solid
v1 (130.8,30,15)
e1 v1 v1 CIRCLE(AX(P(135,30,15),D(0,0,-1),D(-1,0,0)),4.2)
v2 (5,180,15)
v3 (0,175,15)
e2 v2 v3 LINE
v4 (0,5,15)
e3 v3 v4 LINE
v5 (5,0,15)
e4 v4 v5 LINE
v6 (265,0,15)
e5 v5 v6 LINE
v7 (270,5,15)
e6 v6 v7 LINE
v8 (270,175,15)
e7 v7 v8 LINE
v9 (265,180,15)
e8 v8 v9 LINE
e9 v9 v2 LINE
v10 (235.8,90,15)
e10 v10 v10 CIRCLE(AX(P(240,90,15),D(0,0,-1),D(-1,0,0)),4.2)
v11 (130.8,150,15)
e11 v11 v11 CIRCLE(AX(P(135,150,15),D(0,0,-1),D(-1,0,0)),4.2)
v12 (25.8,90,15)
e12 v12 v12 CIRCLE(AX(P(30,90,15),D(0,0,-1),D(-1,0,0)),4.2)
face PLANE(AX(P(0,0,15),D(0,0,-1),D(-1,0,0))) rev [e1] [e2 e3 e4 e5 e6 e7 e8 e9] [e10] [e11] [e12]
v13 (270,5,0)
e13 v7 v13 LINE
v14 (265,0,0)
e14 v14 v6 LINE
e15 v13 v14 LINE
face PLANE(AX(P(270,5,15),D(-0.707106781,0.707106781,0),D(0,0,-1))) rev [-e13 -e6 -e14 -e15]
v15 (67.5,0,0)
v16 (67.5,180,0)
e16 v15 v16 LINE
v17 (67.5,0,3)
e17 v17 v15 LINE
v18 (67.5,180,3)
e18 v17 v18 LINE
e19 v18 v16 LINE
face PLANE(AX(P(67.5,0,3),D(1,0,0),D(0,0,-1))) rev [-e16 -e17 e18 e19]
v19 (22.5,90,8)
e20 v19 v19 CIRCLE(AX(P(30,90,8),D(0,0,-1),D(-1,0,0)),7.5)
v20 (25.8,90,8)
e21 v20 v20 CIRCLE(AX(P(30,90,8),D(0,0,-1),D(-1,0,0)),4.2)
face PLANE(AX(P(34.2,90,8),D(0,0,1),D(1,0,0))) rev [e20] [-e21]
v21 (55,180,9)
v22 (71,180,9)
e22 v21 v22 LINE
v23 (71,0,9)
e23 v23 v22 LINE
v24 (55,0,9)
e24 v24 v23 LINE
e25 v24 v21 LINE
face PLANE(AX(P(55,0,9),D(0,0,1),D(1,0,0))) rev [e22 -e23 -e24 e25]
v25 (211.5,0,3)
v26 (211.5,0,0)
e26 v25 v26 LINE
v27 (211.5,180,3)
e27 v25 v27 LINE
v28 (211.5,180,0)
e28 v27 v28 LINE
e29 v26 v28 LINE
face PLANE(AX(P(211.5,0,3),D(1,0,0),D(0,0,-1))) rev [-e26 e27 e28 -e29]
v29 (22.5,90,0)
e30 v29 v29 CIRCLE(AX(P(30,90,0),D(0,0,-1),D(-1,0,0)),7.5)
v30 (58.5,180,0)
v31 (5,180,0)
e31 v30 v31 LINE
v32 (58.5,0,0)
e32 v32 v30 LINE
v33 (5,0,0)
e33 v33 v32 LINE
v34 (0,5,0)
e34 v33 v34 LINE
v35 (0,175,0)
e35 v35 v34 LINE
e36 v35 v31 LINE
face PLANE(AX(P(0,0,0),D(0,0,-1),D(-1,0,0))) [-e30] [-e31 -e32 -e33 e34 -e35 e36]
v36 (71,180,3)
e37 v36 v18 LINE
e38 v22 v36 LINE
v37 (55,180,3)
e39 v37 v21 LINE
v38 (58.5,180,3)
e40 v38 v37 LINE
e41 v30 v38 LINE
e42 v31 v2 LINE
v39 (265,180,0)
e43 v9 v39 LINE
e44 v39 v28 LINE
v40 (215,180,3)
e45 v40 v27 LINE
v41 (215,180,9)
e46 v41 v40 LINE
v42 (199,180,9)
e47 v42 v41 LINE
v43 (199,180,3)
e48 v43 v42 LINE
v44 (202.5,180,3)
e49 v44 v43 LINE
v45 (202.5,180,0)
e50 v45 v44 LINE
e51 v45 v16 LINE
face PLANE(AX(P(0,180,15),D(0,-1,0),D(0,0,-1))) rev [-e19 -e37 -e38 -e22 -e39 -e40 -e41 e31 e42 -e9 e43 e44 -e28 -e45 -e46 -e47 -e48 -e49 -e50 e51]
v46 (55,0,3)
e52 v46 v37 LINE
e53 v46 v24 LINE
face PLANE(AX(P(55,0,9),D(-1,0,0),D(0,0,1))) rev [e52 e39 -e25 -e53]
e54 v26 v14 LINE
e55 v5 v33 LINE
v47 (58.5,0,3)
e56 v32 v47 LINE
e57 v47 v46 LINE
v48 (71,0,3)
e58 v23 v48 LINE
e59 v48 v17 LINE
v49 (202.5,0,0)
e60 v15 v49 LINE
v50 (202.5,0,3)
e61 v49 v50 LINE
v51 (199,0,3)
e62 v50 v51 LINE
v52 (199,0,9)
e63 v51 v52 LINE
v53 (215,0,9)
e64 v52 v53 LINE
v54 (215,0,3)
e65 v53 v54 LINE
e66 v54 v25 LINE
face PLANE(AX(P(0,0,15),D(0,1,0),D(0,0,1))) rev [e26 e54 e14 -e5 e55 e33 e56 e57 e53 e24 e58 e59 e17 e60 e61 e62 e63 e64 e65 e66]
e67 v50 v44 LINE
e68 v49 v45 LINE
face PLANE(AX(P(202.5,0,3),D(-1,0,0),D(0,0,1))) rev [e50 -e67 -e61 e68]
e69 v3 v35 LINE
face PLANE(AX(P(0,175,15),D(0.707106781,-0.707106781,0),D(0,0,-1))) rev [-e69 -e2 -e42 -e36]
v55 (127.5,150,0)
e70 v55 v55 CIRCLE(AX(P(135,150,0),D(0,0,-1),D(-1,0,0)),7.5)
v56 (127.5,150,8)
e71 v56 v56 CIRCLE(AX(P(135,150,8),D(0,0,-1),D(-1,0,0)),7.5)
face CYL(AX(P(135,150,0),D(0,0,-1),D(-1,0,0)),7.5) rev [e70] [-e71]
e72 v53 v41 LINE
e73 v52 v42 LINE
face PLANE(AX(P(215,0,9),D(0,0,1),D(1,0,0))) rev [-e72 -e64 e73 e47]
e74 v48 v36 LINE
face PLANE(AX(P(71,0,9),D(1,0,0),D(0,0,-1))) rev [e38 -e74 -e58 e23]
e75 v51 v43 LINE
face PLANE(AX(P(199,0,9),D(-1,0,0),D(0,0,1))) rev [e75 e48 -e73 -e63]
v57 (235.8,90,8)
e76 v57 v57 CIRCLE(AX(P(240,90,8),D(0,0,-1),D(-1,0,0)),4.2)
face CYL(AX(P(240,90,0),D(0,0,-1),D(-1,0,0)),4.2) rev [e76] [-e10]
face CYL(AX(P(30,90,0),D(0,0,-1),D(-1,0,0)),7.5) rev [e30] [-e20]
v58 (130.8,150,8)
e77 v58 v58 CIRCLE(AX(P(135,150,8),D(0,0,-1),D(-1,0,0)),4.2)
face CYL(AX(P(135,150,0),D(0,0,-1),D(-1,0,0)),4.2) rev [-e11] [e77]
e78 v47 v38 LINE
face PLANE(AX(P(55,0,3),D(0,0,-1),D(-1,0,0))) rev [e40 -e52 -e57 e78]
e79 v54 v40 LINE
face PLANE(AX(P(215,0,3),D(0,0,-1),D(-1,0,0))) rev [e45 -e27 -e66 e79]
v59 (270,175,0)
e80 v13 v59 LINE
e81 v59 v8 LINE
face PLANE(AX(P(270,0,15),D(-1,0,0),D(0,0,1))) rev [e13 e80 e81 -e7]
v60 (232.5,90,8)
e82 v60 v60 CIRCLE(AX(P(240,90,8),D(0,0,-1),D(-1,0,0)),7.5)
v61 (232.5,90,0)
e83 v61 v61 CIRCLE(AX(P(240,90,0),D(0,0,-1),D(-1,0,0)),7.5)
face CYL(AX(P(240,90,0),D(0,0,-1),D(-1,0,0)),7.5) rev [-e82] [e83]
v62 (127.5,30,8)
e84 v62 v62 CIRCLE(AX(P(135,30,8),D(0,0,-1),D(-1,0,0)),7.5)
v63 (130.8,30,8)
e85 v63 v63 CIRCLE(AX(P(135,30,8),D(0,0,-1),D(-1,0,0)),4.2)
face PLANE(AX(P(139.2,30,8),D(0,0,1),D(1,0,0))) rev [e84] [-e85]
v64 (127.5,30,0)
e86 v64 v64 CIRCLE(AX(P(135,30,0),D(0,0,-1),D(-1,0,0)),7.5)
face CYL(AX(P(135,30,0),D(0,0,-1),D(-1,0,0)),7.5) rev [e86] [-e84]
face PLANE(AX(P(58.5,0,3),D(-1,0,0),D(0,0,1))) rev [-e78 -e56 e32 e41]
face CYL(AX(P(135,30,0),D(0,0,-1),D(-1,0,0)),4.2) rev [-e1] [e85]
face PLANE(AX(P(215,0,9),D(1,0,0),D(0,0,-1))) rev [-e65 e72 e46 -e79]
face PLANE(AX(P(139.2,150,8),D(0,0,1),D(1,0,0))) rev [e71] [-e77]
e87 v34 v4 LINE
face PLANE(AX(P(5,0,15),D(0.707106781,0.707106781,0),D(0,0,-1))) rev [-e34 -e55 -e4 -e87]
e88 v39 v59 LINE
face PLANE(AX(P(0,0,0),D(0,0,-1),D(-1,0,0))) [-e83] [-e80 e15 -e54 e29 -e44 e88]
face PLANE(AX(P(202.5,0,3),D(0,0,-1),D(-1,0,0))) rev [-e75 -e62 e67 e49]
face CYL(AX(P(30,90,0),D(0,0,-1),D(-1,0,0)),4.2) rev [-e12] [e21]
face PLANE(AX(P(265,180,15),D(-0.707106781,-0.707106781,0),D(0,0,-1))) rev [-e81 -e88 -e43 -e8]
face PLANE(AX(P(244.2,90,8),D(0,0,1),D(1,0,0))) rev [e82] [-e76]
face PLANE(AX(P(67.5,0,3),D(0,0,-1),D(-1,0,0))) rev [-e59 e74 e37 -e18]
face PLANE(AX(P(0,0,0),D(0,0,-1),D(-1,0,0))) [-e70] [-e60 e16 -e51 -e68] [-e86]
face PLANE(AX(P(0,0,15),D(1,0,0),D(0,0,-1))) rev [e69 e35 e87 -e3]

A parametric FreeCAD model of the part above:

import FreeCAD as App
import Part
import Sketcher

V = App.Vector


def edges_at(feature, points):
    """Names of the edges that pass closest to the given points."""
    edges = feature.Shape.Edges
    near = lambda p: min(range(len(edges)), key=lambda i: edges[i].distToShape(Part.Vertex(*p))[0])
    return sorted({f"Edge{near(p) + 1}" for p in points})

doc = App.newDocument("Part")
body = doc.addObject("PartDesign::Body", "Body")

# Sketch on XY plane
sketch1 = body.newObject("Sketcher::SketchObject", "Sketch")
sketch1.AttachmentSupport = (doc.getObject("XY_Plane"), [""])
sketch1.MapMode = "FlatFace"
sketch1.addGeometry(Part.LineSegment(V(0, 180, 0), V(0, 0, 0)), False)
sketch1.addGeometry(Part.LineSegment(V(0, 0, 0), V(270, 0, 0)), False)
sketch1.addGeometry(Part.LineSegment(V(270, 0, 0), V(270, 180, 0)), False)
sketch1.addGeometry(Part.LineSegment(V(270, 180, 0), V(0, 180, 0)), False)
sketch1.addConstraint(Sketcher.Constraint("Coincident", 0, 2, 1, 1))
sketch1.addConstraint(Sketcher.Constraint("Coincident", 1, 2, 2, 1))
sketch1.addConstraint(Sketcher.Constraint("Coincident", 2, 2, 3, 1))
sketch1.addConstraint(Sketcher.Constraint("Coincident", 3, 2, 0, 1))
sketch1.addConstraint(Sketcher.Constraint("Vertical", 0))
sketch1.addConstraint(Sketcher.Constraint("Horizontal", 1))
sketch1.addConstraint(Sketcher.Constraint("Vertical", 2))
sketch1.addConstraint(Sketcher.Constraint("Horizontal", 3))
sketch1.addConstraint(Sketcher.Constraint("Coincident", 0, 2, -1, 1))
sketch1.addConstraint(Sketcher.Constraint("DistanceX", 1, 1, 1, 2, 270.0))
sketch1.addConstraint(Sketcher.Constraint("DistanceY", 0, 2, 0, 1, 180.0))
pad1 = body.newObject("PartDesign::Pad", "Pad")
pad1.Profile = sketch1
pad1.Length = 15
doc.recompute()

chamfer = body.newObject("PartDesign::Chamfer", "Chamfer")
chamfer.Base = (pad1, edges_at(pad1, [
    (0, 180, 7.5),
    (270, 180, 7.5),
    (270, 0, 7.5),
    (0, 0, 7.5),
]))
chamfer.Size = 5

# Sketch on XY plane
sketch2 = body.newObject("Sketcher::SketchObject", "Sketch001")
sketch2.AttachmentSupport = (doc.getObject("XY_Plane"), [""])
sketch2.MapMode = "FlatFace"
sketch2.addGeometry(Part.Circle(V(240, 90, 0), V(0, 0, 1), 4.2), False)
sketch2.addGeometry(Part.Circle(V(30, 90, 0), V(0, 0, 1), 4.2), False)
sketch2.addGeometry(Part.Circle(V(135, 30, 0), V(0, 0, 1), 4.2), False)
sketch2.addGeometry(Part.Circle(V(135, 150, 0), V(0, 0, 1), 4.2), False)
sketch2.addConstraint(Sketcher.Constraint("Equal", 0, 1))
sketch2.addConstraint(Sketcher.Constraint("Equal", 1, 2))
sketch2.addConstraint(Sketcher.Constraint("Equal", 2, 3))
sketch2.addConstraint(Sketcher.Constraint("Horizontal", 0, 3, 1, 3))
sketch2.addConstraint(Sketcher.Constraint("Vertical", 2, 3, 3, 3))
sketch2.addConstraint(Sketcher.Constraint("Diameter", 0, 8.4))
sketch2.addConstraint(Sketcher.Constraint("DistanceX", -1, 1, 0, 3, 240.0))
sketch2.addConstraint(Sketcher.Constraint("DistanceY", -1, 1, 0, 3, 90.0))
sketch2.addConstraint(Sketcher.Constraint("DistanceX", -1, 1, 1, 3, 30.0))
sketch2.addConstraint(Sketcher.Constraint("DistanceX", -1, 1, 2, 3, 135.0))
sketch2.addConstraint(Sketcher.Constraint("DistanceY", -1, 1, 2, 3, 30.0))
sketch2.addConstraint(Sketcher.Constraint("DistanceY", -1, 1, 3, 3, 150.0))
doc.recompute()
hole = body.newObject("PartDesign::Hole", "Hole")
hole.Profile = sketch2
hole.ThreadType = "None"
hole.Diameter = 8.4
hole.DepthType = "ThroughAll"
hole.HoleCutType = "Counterbore"
hole.HoleCutDiameter = 15
hole.HoleCutDepth = 8
hole.Reversed = True

# Sketch on XZ plane
sketch3 = body.newObject("Sketcher::SketchObject", "Sketch002")
sketch3.AttachmentSupport = (doc.getObject("XZ_Plane"), [""])
sketch3.MapMode = "FlatFace"
sketch3.AttachmentOffset = App.Placement(V(0, 0, -180), App.Rotation())
sketch3.addGeometry(Part.LineSegment(V(55, 9, 0), V(71, 9, 0)), False)
sketch3.addGeometry(Part.LineSegment(V(71, 9, 0), V(71, 3, 0)), False)
sketch3.addGeometry(Part.LineSegment(V(71, 3, 0), V(67.5, 3, 0)), False)
sketch3.addGeometry(Part.LineSegment(V(67.5, 3, 0), V(67.5, 0, 0)), False)
sketch3.addGeometry(Part.LineSegment(V(67.5, 0, 0), V(58.5, 0, 0)), False)
sketch3.addGeometry(Part.LineSegment(V(58.5, 0, 0), V(58.5, 3, 0)), False)
sketch3.addGeometry(Part.LineSegment(V(58.5, 3, 0), V(55, 3, 0)), False)
sketch3.addGeometry(Part.LineSegment(V(55, 3, 0), V(55, 9, 0)), False)
sketch3.addGeometry(Part.LineSegment(V(202.5, 3, 0), V(199, 3, 0)), False)
sketch3.addGeometry(Part.LineSegment(V(199, 3, 0), V(199, 9, 0)), False)
sketch3.addGeometry(Part.LineSegment(V(199, 9, 0), V(215, 9, 0)), False)
sketch3.addGeometry(Part.LineSegment(V(215, 9, 0), V(215, 3, 0)), False)
sketch3.addGeometry(Part.LineSegment(V(215, 3, 0), V(211.5, 3, 0)), False)
sketch3.addGeometry(Part.LineSegment(V(211.5, 3, 0), V(211.5, 0, 0)), False)
sketch3.addGeometry(Part.LineSegment(V(211.5, 0, 0), V(202.5, 0, 0)), False)
sketch3.addGeometry(Part.LineSegment(V(202.5, 0, 0), V(202.5, 3, 0)), False)
sketch3.addConstraint(Sketcher.Constraint("Coincident", 0, 2, 1, 1))
sketch3.addConstraint(Sketcher.Constraint("Coincident", 1, 2, 2, 1))
sketch3.addConstraint(Sketcher.Constraint("Coincident", 2, 2, 3, 1))
sketch3.addConstraint(Sketcher.Constraint("Coincident", 3, 2, 4, 1))
sketch3.addConstraint(Sketcher.Constraint("Coincident", 4, 2, 5, 1))
sketch3.addConstraint(Sketcher.Constraint("Coincident", 5, 2, 6, 1))
sketch3.addConstraint(Sketcher.Constraint("Coincident", 6, 2, 7, 1))
sketch3.addConstraint(Sketcher.Constraint("Coincident", 7, 2, 0, 1))
sketch3.addConstraint(Sketcher.Constraint("Coincident", 8, 2, 9, 1))
sketch3.addConstraint(Sketcher.Constraint("Coincident", 9, 2, 10, 1))
sketch3.addConstraint(Sketcher.Constraint("Coincident", 10, 2, 11, 1))
sketch3.addConstraint(Sketcher.Constraint("Coincident", 11, 2, 12, 1))
sketch3.addConstraint(Sketcher.Constraint("Coincident", 12, 2, 13, 1))
sketch3.addConstraint(Sketcher.Constraint("Coincident", 13, 2, 14, 1))
sketch3.addConstraint(Sketcher.Constraint("Coincident", 14, 2, 15, 1))
sketch3.addConstraint(Sketcher.Constraint("Coincident", 15, 2, 8, 1))
sketch3.addConstraint(Sketcher.Constraint("Horizontal", 0))
sketch3.addConstraint(Sketcher.Constraint("Vertical", 1))
sketch3.addConstraint(Sketcher.Constraint("Horizontal", 2))
sketch3.addConstraint(Sketcher.Constraint("Vertical", 3))
sketch3.addConstraint(Sketcher.Constraint("Horizontal", 4))
sketch3.addConstraint(Sketcher.Constraint("Vertical", 5))
sketch3.addConstraint(Sketcher.Constraint("Horizontal", 6))
sketch3.addConstraint(Sketcher.Constraint("Vertical", 7))
sketch3.addConstraint(Sketcher.Constraint("Horizontal", 8))
sketch3.addConstraint(Sketcher.Constraint("Vertical", 9))
sketch3.addConstraint(Sketcher.Constraint("Horizontal", 10))
sketch3.addConstraint(Sketcher.Constraint("Vertical", 11))
sketch3.addConstraint(Sketcher.Constraint("Horizontal", 12))
sketch3.addConstraint(Sketcher.Constraint("Vertical", 13))
sketch3.addConstraint(Sketcher.Constraint("Horizontal", 14))
sketch3.addConstraint(Sketcher.Constraint("Vertical", 15))
sketch3.addConstraint(Sketcher.Constraint("PointOnObject", 3, 2, -1))
sketch3.addConstraint(Sketcher.Constraint("PointOnObject", 13, 2, -1))
sketch3.addConstraint(Sketcher.Constraint("Horizontal", 2, 2, 5, 2))
sketch3.addConstraint(Sketcher.Constraint("Horizontal", 6, 2, 8, 2))
sketch3.addConstraint(Sketcher.Constraint("Horizontal", 7, 2, 9, 2))
sketch3.addConstraint(Sketcher.Constraint("Horizontal", 8, 2, 11, 2))
sketch3.addConstraint(Sketcher.Constraint("Equal", 2, 6))
sketch3.addConstraint(Sketcher.Constraint("Equal", 6, 8))
sketch3.addConstraint(Sketcher.Constraint("Equal", 0, 10))
sketch3.addConstraint(Sketcher.Constraint("Equal", 8, 12))
sketch3.addConstraint(Sketcher.Constraint("DistanceX", 0, 1, 0, 2, 16.0))
sketch3.addConstraint(Sketcher.Constraint("DistanceX", 4, 2, 4, 1, 9.0))
sketch3.addConstraint(Sketcher.Constraint("DistanceY", 1, 2, 1, 1, 6.0))
sketch3.addConstraint(Sketcher.Constraint("DistanceY", 3, 2, 3, 1, 3.0))
sketch3.addConstraint(Sketcher.Constraint("DistanceX", -1, 1, 0, 2, 71.0))
sketch3.addConstraint(Sketcher.Constraint("DistanceX", -1, 1, 8, 2, 199.0))
pocket1 = body.newObject("PartDesign::Pocket", "Pocket")
pocket1.Profile = sketch3
pocket1.Type = "ThroughAll"
pocket1.Reversed = True

doc.recompute()
